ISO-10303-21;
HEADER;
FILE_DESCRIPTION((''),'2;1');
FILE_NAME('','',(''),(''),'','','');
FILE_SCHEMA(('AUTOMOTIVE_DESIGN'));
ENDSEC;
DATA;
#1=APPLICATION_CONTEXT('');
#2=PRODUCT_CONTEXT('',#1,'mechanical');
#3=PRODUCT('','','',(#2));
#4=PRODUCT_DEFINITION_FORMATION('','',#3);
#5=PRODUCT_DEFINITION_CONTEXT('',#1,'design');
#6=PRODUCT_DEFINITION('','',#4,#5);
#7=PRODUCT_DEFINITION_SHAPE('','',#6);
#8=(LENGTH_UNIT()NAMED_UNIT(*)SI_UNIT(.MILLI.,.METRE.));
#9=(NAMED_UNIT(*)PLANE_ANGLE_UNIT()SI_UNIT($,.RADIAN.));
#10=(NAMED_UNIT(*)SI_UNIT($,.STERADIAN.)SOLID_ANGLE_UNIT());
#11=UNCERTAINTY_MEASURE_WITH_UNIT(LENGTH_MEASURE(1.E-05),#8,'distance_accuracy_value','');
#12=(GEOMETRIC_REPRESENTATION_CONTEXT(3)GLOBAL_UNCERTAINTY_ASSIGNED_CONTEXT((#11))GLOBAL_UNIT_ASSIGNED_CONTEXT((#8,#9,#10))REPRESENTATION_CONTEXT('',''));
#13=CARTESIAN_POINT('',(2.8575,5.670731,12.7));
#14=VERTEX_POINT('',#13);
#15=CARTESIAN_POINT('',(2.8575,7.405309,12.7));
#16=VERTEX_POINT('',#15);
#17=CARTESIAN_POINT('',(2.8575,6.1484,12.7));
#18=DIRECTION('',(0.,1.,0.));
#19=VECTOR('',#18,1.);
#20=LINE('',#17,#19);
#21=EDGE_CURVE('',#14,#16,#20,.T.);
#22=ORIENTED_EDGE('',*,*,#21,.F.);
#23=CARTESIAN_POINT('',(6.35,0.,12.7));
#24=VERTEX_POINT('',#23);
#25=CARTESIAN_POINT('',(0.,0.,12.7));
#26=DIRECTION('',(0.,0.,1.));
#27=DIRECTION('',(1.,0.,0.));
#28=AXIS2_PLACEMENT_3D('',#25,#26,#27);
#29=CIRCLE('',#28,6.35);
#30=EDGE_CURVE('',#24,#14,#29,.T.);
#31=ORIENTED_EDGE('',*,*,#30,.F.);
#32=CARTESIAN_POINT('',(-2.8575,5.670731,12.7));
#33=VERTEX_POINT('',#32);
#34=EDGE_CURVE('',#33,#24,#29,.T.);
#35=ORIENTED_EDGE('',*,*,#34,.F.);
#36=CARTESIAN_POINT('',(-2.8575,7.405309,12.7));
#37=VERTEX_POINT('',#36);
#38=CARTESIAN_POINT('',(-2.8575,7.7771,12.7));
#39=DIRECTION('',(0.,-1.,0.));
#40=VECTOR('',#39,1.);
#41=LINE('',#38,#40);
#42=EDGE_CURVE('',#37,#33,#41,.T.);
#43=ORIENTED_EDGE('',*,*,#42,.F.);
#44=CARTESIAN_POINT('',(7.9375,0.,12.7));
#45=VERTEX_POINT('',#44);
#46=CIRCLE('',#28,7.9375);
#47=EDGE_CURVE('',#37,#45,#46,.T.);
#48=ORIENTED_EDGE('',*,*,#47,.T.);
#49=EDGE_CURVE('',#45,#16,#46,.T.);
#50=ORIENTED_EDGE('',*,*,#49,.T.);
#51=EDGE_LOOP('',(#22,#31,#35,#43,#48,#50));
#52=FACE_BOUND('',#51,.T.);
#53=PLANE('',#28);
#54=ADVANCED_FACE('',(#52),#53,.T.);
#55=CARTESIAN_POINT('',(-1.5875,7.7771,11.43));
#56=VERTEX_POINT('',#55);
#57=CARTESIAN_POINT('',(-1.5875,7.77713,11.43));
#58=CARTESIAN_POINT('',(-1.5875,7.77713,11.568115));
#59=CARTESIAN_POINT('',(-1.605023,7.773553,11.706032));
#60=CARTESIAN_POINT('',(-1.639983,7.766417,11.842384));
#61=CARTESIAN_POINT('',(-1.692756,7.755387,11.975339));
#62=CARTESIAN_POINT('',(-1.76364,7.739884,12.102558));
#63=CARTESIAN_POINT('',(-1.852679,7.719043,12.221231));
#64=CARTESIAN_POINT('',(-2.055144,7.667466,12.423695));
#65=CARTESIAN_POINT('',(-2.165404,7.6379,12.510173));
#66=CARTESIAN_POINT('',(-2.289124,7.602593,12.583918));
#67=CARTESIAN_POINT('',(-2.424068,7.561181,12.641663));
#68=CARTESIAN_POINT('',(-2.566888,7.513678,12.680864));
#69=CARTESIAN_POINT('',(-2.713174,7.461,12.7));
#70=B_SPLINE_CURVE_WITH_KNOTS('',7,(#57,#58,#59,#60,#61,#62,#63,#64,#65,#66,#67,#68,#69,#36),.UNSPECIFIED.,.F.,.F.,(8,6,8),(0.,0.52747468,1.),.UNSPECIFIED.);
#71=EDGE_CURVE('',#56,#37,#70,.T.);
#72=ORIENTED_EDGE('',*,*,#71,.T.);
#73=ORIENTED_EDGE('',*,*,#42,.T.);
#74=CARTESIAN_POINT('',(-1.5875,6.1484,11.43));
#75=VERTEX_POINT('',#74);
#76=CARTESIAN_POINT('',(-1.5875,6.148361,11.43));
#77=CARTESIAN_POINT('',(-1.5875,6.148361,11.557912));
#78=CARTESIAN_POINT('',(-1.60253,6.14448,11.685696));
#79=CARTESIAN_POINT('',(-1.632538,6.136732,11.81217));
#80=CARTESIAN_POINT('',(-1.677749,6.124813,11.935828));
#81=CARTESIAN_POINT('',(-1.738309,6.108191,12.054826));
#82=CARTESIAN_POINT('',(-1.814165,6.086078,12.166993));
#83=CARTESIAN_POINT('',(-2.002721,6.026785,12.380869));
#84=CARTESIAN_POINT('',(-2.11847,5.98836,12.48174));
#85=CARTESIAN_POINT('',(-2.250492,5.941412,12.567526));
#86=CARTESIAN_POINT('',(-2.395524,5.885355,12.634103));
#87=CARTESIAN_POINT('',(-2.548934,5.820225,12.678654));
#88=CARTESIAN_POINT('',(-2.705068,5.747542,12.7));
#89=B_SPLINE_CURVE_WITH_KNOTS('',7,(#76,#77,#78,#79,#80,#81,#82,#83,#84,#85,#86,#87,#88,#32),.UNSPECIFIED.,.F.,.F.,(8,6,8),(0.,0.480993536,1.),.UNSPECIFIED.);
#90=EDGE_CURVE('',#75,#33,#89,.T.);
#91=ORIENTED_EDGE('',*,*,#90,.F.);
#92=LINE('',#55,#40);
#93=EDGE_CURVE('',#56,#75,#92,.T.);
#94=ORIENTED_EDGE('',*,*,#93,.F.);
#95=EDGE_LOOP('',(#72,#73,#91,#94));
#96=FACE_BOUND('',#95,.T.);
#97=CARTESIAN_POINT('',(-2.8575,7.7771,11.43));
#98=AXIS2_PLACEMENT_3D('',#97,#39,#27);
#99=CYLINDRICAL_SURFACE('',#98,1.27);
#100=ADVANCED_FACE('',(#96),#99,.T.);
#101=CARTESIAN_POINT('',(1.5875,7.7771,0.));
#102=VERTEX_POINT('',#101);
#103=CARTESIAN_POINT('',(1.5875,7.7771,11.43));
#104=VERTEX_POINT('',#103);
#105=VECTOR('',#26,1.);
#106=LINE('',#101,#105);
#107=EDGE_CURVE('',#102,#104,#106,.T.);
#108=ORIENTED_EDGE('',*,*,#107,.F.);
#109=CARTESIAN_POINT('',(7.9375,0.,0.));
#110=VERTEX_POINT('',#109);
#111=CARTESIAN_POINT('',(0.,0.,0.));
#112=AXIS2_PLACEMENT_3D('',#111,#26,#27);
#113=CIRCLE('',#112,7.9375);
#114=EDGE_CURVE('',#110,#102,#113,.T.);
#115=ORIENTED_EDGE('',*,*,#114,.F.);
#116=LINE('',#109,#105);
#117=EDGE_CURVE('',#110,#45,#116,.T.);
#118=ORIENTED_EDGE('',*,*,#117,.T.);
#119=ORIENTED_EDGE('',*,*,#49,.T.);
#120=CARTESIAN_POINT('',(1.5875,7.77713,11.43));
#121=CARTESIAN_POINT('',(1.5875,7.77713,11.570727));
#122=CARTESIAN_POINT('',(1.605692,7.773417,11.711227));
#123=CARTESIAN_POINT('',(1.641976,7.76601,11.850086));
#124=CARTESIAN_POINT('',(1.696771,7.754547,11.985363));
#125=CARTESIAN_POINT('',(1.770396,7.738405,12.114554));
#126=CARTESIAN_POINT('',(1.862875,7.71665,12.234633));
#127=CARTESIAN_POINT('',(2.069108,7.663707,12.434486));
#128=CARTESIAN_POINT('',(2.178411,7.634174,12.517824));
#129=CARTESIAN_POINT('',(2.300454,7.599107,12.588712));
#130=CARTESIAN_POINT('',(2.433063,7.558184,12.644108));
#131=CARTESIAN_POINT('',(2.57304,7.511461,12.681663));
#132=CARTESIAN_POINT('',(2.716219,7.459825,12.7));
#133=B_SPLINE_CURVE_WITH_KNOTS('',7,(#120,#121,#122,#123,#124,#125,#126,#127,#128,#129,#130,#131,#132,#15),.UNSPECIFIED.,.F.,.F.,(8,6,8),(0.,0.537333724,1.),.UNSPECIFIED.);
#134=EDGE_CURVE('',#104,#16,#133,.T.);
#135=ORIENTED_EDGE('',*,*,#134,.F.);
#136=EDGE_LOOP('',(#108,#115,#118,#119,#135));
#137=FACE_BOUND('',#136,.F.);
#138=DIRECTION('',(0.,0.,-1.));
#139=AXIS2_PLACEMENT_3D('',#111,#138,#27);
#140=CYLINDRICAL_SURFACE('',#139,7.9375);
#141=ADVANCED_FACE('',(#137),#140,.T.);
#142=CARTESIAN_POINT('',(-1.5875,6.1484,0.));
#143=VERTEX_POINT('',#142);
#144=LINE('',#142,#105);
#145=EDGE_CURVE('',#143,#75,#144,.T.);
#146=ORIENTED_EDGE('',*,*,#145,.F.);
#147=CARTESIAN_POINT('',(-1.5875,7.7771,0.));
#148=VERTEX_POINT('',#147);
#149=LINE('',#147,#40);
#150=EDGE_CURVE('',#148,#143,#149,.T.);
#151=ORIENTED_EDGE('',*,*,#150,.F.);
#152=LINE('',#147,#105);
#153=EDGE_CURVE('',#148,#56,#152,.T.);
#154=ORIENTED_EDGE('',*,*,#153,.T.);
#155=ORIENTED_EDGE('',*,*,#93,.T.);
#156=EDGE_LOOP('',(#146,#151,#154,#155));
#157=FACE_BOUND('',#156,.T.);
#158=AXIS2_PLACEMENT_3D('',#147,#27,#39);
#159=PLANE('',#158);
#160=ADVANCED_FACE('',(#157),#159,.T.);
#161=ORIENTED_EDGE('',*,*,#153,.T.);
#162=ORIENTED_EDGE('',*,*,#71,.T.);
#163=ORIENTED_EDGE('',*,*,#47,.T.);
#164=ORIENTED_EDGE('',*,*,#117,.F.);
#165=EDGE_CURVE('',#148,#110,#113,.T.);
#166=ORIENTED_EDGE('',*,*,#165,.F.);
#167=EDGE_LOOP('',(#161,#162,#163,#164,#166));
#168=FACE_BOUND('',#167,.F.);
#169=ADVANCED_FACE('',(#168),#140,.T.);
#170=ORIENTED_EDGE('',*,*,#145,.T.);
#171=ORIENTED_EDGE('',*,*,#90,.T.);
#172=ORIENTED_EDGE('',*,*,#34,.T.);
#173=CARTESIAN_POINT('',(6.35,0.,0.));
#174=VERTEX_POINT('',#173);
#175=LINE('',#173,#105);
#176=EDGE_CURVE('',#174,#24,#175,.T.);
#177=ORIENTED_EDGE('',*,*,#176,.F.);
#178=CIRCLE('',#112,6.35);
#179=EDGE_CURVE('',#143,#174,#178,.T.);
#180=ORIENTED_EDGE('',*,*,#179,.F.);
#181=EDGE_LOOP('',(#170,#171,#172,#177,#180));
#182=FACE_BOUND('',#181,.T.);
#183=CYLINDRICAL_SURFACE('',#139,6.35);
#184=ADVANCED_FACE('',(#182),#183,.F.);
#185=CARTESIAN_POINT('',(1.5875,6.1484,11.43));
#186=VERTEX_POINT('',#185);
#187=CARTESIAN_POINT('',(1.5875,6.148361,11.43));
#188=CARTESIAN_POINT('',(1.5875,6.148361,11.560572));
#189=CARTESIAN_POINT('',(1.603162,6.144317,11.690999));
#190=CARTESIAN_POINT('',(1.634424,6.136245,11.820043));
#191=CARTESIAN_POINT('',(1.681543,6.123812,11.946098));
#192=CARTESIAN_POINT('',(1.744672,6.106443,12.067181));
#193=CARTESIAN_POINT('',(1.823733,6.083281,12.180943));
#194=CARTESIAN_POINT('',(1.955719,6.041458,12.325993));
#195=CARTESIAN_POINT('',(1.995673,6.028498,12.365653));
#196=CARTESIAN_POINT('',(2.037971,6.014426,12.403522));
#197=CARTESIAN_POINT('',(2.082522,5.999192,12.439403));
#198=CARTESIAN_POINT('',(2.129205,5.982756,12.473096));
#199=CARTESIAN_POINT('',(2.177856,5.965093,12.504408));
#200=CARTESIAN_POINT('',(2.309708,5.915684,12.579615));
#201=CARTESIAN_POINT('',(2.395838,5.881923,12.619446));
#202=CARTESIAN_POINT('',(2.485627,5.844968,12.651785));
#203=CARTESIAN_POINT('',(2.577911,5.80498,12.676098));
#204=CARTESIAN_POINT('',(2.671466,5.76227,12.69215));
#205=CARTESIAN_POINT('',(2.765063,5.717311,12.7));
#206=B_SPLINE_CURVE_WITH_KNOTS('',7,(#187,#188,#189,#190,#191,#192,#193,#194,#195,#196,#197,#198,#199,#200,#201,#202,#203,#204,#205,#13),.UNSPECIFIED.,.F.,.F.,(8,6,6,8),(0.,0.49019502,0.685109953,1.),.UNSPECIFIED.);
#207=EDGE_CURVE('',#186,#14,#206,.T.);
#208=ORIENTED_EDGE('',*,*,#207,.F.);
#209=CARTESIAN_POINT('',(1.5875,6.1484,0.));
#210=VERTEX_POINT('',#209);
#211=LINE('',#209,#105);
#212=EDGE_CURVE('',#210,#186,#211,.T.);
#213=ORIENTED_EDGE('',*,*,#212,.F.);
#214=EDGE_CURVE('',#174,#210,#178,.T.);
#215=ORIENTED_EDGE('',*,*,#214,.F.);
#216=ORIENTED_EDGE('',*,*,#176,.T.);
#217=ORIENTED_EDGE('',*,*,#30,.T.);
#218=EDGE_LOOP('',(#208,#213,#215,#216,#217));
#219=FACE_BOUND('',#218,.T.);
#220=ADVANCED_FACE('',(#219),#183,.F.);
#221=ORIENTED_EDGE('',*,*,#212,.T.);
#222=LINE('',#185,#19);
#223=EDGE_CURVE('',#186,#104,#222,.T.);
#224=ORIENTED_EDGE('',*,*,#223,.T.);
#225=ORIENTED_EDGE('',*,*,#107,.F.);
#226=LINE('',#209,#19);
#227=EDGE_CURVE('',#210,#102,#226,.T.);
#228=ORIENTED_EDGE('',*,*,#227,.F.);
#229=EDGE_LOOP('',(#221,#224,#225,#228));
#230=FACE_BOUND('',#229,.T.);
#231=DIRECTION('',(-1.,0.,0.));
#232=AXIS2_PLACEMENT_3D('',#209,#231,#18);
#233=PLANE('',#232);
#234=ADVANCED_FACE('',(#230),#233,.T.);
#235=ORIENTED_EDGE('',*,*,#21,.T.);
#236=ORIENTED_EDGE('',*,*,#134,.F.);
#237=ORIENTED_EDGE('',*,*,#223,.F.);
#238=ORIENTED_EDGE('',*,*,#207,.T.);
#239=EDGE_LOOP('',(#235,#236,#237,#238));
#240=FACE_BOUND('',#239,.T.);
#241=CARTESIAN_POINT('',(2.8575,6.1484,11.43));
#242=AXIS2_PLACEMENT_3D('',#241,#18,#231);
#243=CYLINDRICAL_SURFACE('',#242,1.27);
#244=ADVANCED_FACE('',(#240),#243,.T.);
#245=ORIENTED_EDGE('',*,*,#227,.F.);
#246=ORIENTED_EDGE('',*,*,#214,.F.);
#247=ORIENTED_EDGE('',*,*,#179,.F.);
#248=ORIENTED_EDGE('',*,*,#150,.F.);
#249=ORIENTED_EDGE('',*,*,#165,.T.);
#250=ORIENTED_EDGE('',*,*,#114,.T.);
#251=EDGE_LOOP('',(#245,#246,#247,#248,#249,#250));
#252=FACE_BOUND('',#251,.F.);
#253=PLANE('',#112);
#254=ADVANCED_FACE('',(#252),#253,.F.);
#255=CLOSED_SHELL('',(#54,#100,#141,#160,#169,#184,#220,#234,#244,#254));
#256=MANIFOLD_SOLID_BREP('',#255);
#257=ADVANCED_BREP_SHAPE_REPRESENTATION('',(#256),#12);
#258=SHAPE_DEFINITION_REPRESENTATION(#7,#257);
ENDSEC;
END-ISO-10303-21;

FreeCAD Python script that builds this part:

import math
import FreeCAD as App
import Part
import Sketcher
from FreeCAD import Vector
Q = App.Units.Quantity


def edges_at(feature, points):
    """Names of the edges that pass closest to the given points."""
    edges = feature.Shape.Edges
    near = lambda p: min(range(len(edges)), key=lambda i: edges[i].distToShape(Part.Vertex(*p))[0])
    return sorted({f"Edge{near(p) + 1}" for p in points})

doc = App.newDocument("Part")
params = doc.addObject("Spreadsheet::Sheet", "Params")
for row, (alias, value) in enumerate([
    ("sketch1_radius", "0.25 in"),
    ("sketch1_radius2", "0.3125 in"),
    ("pad1_length", "0.5 in"),
    ("fillet_radius", "0.05 in"),
], start=1):
    params.set(f"A{row}", alias)
    params.set(f"B{row}", "=" + value)
    params.setAlias(f"B{row}", alias)

body = doc.addObject("PartDesign::Body", "Body")

sketch1 = body.newObject("Sketcher::SketchObject", "Sketch")
sketch1.AttachmentSupport = (doc.getObject("XY_Plane"), [""])
sketch1.MapMode = "FlatFace"
sketch1.addGeometry(Part.ArcOfCircle(Part.Circle(Vector(0, 0, 0), Vector(0, 0, 1), 6.35), math.radians(104.477424), math.radians(435.522576)), False)
sketch1.addGeometry(Part.LineSegment(Vector(-1.5875, 6.1484, 0), Vector(-1.5875, 7.7771, 0)), False)
sketch1.addGeometry(Part.ArcOfCircle(Part.Circle(Vector(0, 0, 0), Vector(0, 0, 1), 7.9375), math.radians(101.537002), math.radians(438.462998)), False)
sketch1.addGeometry(Part.LineSegment(Vector(1.5875, 7.7771, 0), Vector(1.5875, 6.1484, 0)), False)
sketch1.addConstraint(Sketcher.Constraint("Coincident", 0, 1, 1, 1))
sketch1.addConstraint(Sketcher.Constraint("Coincident", 1, 2, 2, 1))
sketch1.addConstraint(Sketcher.Constraint("Coincident", 2, 2, 3, 1))
sketch1.addConstraint(Sketcher.Constraint("Coincident", 3, 2, 0, 2))
sketch1.addConstraint(Sketcher.Constraint("Vertical", 1))
sketch1.addConstraint(Sketcher.Constraint("Vertical", 3))
sketch1.addConstraint(Sketcher.Constraint("Coincident", 0, 3, -1, 1))
sketch1.addConstraint(Sketcher.Constraint("Coincident", 2, 3, -1, 1))
sketch1.addConstraint(Sketcher.Constraint("Horizontal", 1, 2, 2, 2))
sketch1.addConstraint(Sketcher.Constraint("Radius", 0, Q("0.25 in")))
sketch1.addConstraint(Sketcher.Constraint("Radius", 2, Q("0.3125 in")))
sketch1.addConstraint(Sketcher.Constraint("DistanceX", 0, 1, -1, 1, Q("0.0625 in")))
sketch1.setExpression("Constraints[9]", "Params.sketch1_radius")
sketch1.setExpression("Constraints[10]", "Params.sketch1_radius2")
pad1 = body.newObject("PartDesign::Pad", "Pad")
pad1.Profile = sketch1
pad1.setExpression("Length", "Params.pad1_length")
doc.recompute()

fillet = body.newObject("PartDesign::Fillet", "Fillet")
fillet.Base = (pad1, edges_at(pad1, [(-1.587, 6.963, 12.7), (1.587, 6.963, 12.7)]))
fillet.setExpression("Radius", "Params.fillet_radius")

doc.recompute()
